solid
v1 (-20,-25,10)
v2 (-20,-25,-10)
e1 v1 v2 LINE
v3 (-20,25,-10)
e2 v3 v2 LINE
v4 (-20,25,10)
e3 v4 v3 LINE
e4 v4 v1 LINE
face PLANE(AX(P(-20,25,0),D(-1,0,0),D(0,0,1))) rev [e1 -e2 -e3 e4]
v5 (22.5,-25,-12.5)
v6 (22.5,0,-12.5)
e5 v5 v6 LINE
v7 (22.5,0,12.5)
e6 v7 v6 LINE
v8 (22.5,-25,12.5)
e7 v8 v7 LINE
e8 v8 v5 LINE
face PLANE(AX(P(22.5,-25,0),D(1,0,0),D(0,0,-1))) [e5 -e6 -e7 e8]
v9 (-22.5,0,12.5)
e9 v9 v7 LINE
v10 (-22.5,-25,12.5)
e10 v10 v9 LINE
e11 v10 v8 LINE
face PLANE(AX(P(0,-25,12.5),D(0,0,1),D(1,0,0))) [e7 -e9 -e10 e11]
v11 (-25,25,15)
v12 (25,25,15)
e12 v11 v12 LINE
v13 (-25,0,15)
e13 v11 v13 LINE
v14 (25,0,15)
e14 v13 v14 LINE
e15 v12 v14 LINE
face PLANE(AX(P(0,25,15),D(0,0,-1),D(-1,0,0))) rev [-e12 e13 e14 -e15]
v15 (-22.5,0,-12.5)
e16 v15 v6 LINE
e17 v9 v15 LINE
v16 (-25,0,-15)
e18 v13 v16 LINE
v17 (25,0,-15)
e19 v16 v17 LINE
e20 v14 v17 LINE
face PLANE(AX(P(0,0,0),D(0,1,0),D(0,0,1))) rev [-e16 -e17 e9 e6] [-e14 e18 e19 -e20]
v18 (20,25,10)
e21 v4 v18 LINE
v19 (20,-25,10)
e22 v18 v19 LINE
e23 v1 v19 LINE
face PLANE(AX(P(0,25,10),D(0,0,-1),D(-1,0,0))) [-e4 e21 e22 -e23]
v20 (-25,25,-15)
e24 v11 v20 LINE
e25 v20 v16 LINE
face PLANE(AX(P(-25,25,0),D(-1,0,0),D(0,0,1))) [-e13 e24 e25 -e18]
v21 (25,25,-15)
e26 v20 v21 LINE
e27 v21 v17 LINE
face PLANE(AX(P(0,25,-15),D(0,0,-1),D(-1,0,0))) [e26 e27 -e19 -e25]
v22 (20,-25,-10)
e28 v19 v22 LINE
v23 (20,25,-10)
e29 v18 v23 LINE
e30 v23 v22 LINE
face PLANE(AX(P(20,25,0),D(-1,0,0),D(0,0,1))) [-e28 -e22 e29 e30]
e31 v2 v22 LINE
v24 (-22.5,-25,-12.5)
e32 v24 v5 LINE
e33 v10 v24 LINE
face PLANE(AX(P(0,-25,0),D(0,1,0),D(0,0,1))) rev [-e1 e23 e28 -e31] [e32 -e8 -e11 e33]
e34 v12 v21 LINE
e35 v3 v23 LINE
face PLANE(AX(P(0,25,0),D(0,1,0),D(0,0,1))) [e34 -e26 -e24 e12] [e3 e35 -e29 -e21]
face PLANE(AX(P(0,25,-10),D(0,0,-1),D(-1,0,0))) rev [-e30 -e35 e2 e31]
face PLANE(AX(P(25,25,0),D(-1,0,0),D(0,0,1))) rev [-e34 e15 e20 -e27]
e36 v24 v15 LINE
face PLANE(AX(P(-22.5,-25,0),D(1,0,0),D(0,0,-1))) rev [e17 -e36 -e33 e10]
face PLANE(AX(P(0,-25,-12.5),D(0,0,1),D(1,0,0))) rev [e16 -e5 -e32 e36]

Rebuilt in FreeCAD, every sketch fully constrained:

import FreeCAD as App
import Part
import Sketcher

V = App.Vector
Q = App.Units.Quantity

doc = App.newDocument("Part")
body = doc.addObject("PartDesign::Body", "Body")

sketch1 = body.newObject("Sketcher::SketchObject", "Sketch")
sketch1.AttachmentSupport = (doc.getObject("XZ_Plane"), [""])
sketch1.MapMode = "FlatFace"
sketch1.addGeometry([
    Part.LineSegment(V(-25, -15, 0), V(-25, 15, 0)),
    Part.LineSegment(V(-25, 15, 0), V(25, 15, 0)),
    Part.LineSegment(V(25, 15, 0), V(25, -15, 0)),
    Part.LineSegment(V(25, -15, 0), V(-25, -15, 0)),
    Part.LineSegment(V(20, 10, 0), V(-20, 10, 0)),
    Part.LineSegment(V(-20, 10, 0), V(-20, -10, 0)),
    Part.LineSegment(V(-20, -10, 0), V(20, -10, 0)),
    Part.LineSegment(V(20, -10, 0), V(20, 10, 0)),
], False)
sketch1.addConstraint([
    Sketcher.Constraint("Coincident", 0, 2, 1, 1),
    Sketcher.Constraint("Coincident", 1, 2, 2, 1),
    Sketcher.Constraint("Coincident", 2, 2, 3, 1),
    Sketcher.Constraint("Coincident", 3, 2, 0, 1),
    Sketcher.Constraint("Coincident", 4, 2, 5, 1),
    Sketcher.Constraint("Coincident", 5, 2, 6, 1),
    Sketcher.Constraint("Coincident", 6, 2, 7, 1),
    Sketcher.Constraint("Coincident", 7, 2, 4, 1),
    Sketcher.Constraint("Vertical", 0),
    Sketcher.Constraint("Horizontal", 1),
    Sketcher.Constraint("Vertical", 2),
    Sketcher.Constraint("Horizontal", 3),
    Sketcher.Constraint("Horizontal", 4),
    Sketcher.Constraint("Vertical", 5),
    Sketcher.Constraint("Horizontal", 6),
    Sketcher.Constraint("Vertical", 7),
    Sketcher.Constraint("Symmetric", 0, 2, 2, 2, -1, 1),
    Sketcher.Constraint("Symmetric", 4, 2, 6, 2, -1, 1),
    Sketcher.Constraint("DistanceX", 1, 1, 1, 2, Q("50 mm")),
    Sketcher.Constraint("DistanceX", 4, 2, 4, 1, Q("40 mm")),
    Sketcher.Constraint("DistanceY", 0, 1, 0, 2, Q("30 mm")),
    Sketcher.Constraint("DistanceY", 5, 2, 5, 1, Q("20 mm")),
])
pad1 = body.newObject("PartDesign::Pad", "Pad")
pad1.Profile = sketch1
pad1.Length = 25
pad1.Reversed = True

sketch2 = body.newObject("Sketcher::SketchObject", "Sketch001")
sketch2.AttachmentSupport = (doc.getObject("XZ_Plane"), [""])
sketch2.MapMode = "FlatFace"
sketch2.addGeometry([
    Part.LineSegment(V(-22, -12, 0), V(-22, 12, 0)),
    Part.LineSegment(V(-22, 12, 0), V(22, 12, 0)),
    Part.LineSegment(V(22, 12, 0), V(22, -12, 0)),
    Part.LineSegment(V(22, -12, 0), V(-22, -12, 0)),
    Part.LineSegment(V(20, 10, 0), V(-20, 10, 0)),
    Part.LineSegment(V(-20, 10, 0), V(-20, -10, 0)),
    Part.LineSegment(V(-20, -10, 0), V(20, -10, 0)),
    Part.LineSegment(V(20, -10, 0), V(20, 10, 0)),
], False)
sketch2.addConstraint([
    Sketcher.Constraint("Coincident", 0, 2, 1, 1),
    Sketcher.Constraint("Coincident", 1, 2, 2, 1),
    Sketcher.Constraint("Coincident", 2, 2, 3, 1),
    Sketcher.Constraint("Coincident", 3, 2, 0, 1),
    Sketcher.Constraint("Coincident", 4, 2, 5, 1),
    Sketcher.Constraint("Coincident", 5, 2, 6, 1),
    Sketcher.Constraint("Coincident", 6, 2, 7, 1),
    Sketcher.Constraint("Coincident", 7, 2, 4, 1),
    Sketcher.Constraint("Vertical", 0),
    Sketcher.Constraint("Horizontal", 1),
    Sketcher.Constraint("Vertical", 2),
    Sketcher.Constraint("Horizontal", 3),
    Sketcher.Constraint("Horizontal", 4),
    Sketcher.Constraint("Vertical", 5),
    Sketcher.Constraint("Horizontal", 6),
    Sketcher.Constraint("Vertical", 7),
    Sketcher.Constraint("Symmetric", 0, 2, 2, 2, -1, 1),
    Sketcher.Constraint("Symmetric", 4, 2, 6, 2, -1, 1),
    Sketcher.Constraint("DistanceX", 1, 1, 1, 2, Q("45 mm")),
    Sketcher.Constraint("DistanceX", 4, 2, 4, 1, Q("40 mm")),
    Sketcher.Constraint("DistanceY", 0, 1, 0, 2, Q("25 mm")),
    Sketcher.Constraint("DistanceY", 5, 2, 5, 1, Q("20 mm")),
])
pad2 = body.newObject("PartDesign::Pad", "Pad001")
pad2.Profile = sketch2
pad2.Length = 25

doc.recompute()
